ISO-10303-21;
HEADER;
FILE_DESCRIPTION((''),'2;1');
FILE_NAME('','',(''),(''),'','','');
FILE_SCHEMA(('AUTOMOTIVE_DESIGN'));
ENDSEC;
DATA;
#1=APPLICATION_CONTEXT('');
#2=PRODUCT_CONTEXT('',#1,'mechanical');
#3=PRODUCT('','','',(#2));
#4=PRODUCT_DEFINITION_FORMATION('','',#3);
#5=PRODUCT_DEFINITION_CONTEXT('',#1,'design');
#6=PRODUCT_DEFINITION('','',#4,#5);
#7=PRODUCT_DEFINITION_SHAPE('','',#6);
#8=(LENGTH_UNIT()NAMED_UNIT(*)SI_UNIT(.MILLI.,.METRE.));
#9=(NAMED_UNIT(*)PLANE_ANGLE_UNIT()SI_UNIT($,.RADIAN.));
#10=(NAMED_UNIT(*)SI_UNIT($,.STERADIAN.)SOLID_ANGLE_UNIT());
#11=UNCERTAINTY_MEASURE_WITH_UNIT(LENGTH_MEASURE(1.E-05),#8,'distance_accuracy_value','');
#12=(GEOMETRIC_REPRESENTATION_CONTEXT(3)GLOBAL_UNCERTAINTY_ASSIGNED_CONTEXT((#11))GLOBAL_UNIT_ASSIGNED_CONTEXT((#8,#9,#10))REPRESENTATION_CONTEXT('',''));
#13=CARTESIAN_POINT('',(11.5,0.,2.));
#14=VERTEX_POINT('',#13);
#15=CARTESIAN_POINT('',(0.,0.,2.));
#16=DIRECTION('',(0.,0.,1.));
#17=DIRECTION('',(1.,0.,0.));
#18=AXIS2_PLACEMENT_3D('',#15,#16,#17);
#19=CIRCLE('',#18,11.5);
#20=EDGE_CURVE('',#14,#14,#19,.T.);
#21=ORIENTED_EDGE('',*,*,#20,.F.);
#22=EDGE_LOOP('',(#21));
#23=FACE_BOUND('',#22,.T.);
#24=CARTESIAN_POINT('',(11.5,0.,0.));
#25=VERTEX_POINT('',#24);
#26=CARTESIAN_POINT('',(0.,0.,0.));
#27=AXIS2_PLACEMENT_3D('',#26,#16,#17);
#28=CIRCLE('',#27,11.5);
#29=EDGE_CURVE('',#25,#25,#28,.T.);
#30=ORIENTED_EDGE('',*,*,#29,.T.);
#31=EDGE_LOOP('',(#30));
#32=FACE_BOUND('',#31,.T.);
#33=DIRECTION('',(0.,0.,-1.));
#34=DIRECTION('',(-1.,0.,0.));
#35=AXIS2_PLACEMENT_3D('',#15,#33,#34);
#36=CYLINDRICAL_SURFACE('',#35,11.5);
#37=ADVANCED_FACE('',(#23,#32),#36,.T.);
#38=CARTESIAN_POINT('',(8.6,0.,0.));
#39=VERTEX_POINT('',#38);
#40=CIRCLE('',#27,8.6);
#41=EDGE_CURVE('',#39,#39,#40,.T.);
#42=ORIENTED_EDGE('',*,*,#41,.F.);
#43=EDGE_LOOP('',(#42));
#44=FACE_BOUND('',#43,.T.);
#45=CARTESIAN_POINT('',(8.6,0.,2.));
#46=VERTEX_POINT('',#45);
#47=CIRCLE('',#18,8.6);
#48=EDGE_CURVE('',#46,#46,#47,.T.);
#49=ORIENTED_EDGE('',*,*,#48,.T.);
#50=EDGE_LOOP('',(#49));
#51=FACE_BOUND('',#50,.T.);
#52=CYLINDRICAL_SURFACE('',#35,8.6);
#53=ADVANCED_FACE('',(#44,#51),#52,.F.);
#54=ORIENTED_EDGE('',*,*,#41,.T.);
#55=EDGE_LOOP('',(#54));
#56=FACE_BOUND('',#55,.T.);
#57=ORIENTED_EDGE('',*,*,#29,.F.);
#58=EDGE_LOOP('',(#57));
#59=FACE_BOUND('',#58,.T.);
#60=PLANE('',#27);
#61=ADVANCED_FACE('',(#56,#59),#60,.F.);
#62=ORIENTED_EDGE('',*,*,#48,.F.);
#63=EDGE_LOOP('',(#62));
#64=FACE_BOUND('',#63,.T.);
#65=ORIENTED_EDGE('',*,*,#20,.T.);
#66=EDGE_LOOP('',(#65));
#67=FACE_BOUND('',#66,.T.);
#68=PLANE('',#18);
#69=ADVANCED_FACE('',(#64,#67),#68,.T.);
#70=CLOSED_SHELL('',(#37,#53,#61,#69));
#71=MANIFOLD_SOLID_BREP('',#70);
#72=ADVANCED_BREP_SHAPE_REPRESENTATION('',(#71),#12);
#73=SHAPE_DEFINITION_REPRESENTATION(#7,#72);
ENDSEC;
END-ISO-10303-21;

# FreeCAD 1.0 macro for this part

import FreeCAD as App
import Part
import Sketcher
Q = App.Units.Quantity

doc = App.newDocument("Part")
body = doc.addObject("PartDesign::Body", "Body")

sketch1 = body.newObject("Sketcher::SketchObject", "Sketch")
sketch1.AttachmentSupport = (doc.getObject("XY_Plane"), [""])
sketch1.MapMode = "FlatFace"
sketch1.addGeometry(Part.Circle(App.Vector(0, 0, 0), App.Vector(0, 0, 1), 11.5), False)
sketch1.addGeometry(Part.Circle(App.Vector(0, 0, 0), App.Vector(0, 0, 1), 8.6), False)
sketch1.addConstraint(Sketcher.Constraint("Coincident", 0, 3, -1, 1))
sketch1.addConstraint(Sketcher.Constraint("Coincident", 1, 3, -1, 1))
sketch1.addConstraint(Sketcher.Constraint("Diameter", 0, Q("23 mm")))
sketch1.addConstraint(Sketcher.Constraint("Diameter", 1, Q("17.2 mm")))
pad1 = body.newObject("PartDesign::Pad", "Pad")
pad1.Profile = sketch1
pad1.Length = 2

doc.recompute()
